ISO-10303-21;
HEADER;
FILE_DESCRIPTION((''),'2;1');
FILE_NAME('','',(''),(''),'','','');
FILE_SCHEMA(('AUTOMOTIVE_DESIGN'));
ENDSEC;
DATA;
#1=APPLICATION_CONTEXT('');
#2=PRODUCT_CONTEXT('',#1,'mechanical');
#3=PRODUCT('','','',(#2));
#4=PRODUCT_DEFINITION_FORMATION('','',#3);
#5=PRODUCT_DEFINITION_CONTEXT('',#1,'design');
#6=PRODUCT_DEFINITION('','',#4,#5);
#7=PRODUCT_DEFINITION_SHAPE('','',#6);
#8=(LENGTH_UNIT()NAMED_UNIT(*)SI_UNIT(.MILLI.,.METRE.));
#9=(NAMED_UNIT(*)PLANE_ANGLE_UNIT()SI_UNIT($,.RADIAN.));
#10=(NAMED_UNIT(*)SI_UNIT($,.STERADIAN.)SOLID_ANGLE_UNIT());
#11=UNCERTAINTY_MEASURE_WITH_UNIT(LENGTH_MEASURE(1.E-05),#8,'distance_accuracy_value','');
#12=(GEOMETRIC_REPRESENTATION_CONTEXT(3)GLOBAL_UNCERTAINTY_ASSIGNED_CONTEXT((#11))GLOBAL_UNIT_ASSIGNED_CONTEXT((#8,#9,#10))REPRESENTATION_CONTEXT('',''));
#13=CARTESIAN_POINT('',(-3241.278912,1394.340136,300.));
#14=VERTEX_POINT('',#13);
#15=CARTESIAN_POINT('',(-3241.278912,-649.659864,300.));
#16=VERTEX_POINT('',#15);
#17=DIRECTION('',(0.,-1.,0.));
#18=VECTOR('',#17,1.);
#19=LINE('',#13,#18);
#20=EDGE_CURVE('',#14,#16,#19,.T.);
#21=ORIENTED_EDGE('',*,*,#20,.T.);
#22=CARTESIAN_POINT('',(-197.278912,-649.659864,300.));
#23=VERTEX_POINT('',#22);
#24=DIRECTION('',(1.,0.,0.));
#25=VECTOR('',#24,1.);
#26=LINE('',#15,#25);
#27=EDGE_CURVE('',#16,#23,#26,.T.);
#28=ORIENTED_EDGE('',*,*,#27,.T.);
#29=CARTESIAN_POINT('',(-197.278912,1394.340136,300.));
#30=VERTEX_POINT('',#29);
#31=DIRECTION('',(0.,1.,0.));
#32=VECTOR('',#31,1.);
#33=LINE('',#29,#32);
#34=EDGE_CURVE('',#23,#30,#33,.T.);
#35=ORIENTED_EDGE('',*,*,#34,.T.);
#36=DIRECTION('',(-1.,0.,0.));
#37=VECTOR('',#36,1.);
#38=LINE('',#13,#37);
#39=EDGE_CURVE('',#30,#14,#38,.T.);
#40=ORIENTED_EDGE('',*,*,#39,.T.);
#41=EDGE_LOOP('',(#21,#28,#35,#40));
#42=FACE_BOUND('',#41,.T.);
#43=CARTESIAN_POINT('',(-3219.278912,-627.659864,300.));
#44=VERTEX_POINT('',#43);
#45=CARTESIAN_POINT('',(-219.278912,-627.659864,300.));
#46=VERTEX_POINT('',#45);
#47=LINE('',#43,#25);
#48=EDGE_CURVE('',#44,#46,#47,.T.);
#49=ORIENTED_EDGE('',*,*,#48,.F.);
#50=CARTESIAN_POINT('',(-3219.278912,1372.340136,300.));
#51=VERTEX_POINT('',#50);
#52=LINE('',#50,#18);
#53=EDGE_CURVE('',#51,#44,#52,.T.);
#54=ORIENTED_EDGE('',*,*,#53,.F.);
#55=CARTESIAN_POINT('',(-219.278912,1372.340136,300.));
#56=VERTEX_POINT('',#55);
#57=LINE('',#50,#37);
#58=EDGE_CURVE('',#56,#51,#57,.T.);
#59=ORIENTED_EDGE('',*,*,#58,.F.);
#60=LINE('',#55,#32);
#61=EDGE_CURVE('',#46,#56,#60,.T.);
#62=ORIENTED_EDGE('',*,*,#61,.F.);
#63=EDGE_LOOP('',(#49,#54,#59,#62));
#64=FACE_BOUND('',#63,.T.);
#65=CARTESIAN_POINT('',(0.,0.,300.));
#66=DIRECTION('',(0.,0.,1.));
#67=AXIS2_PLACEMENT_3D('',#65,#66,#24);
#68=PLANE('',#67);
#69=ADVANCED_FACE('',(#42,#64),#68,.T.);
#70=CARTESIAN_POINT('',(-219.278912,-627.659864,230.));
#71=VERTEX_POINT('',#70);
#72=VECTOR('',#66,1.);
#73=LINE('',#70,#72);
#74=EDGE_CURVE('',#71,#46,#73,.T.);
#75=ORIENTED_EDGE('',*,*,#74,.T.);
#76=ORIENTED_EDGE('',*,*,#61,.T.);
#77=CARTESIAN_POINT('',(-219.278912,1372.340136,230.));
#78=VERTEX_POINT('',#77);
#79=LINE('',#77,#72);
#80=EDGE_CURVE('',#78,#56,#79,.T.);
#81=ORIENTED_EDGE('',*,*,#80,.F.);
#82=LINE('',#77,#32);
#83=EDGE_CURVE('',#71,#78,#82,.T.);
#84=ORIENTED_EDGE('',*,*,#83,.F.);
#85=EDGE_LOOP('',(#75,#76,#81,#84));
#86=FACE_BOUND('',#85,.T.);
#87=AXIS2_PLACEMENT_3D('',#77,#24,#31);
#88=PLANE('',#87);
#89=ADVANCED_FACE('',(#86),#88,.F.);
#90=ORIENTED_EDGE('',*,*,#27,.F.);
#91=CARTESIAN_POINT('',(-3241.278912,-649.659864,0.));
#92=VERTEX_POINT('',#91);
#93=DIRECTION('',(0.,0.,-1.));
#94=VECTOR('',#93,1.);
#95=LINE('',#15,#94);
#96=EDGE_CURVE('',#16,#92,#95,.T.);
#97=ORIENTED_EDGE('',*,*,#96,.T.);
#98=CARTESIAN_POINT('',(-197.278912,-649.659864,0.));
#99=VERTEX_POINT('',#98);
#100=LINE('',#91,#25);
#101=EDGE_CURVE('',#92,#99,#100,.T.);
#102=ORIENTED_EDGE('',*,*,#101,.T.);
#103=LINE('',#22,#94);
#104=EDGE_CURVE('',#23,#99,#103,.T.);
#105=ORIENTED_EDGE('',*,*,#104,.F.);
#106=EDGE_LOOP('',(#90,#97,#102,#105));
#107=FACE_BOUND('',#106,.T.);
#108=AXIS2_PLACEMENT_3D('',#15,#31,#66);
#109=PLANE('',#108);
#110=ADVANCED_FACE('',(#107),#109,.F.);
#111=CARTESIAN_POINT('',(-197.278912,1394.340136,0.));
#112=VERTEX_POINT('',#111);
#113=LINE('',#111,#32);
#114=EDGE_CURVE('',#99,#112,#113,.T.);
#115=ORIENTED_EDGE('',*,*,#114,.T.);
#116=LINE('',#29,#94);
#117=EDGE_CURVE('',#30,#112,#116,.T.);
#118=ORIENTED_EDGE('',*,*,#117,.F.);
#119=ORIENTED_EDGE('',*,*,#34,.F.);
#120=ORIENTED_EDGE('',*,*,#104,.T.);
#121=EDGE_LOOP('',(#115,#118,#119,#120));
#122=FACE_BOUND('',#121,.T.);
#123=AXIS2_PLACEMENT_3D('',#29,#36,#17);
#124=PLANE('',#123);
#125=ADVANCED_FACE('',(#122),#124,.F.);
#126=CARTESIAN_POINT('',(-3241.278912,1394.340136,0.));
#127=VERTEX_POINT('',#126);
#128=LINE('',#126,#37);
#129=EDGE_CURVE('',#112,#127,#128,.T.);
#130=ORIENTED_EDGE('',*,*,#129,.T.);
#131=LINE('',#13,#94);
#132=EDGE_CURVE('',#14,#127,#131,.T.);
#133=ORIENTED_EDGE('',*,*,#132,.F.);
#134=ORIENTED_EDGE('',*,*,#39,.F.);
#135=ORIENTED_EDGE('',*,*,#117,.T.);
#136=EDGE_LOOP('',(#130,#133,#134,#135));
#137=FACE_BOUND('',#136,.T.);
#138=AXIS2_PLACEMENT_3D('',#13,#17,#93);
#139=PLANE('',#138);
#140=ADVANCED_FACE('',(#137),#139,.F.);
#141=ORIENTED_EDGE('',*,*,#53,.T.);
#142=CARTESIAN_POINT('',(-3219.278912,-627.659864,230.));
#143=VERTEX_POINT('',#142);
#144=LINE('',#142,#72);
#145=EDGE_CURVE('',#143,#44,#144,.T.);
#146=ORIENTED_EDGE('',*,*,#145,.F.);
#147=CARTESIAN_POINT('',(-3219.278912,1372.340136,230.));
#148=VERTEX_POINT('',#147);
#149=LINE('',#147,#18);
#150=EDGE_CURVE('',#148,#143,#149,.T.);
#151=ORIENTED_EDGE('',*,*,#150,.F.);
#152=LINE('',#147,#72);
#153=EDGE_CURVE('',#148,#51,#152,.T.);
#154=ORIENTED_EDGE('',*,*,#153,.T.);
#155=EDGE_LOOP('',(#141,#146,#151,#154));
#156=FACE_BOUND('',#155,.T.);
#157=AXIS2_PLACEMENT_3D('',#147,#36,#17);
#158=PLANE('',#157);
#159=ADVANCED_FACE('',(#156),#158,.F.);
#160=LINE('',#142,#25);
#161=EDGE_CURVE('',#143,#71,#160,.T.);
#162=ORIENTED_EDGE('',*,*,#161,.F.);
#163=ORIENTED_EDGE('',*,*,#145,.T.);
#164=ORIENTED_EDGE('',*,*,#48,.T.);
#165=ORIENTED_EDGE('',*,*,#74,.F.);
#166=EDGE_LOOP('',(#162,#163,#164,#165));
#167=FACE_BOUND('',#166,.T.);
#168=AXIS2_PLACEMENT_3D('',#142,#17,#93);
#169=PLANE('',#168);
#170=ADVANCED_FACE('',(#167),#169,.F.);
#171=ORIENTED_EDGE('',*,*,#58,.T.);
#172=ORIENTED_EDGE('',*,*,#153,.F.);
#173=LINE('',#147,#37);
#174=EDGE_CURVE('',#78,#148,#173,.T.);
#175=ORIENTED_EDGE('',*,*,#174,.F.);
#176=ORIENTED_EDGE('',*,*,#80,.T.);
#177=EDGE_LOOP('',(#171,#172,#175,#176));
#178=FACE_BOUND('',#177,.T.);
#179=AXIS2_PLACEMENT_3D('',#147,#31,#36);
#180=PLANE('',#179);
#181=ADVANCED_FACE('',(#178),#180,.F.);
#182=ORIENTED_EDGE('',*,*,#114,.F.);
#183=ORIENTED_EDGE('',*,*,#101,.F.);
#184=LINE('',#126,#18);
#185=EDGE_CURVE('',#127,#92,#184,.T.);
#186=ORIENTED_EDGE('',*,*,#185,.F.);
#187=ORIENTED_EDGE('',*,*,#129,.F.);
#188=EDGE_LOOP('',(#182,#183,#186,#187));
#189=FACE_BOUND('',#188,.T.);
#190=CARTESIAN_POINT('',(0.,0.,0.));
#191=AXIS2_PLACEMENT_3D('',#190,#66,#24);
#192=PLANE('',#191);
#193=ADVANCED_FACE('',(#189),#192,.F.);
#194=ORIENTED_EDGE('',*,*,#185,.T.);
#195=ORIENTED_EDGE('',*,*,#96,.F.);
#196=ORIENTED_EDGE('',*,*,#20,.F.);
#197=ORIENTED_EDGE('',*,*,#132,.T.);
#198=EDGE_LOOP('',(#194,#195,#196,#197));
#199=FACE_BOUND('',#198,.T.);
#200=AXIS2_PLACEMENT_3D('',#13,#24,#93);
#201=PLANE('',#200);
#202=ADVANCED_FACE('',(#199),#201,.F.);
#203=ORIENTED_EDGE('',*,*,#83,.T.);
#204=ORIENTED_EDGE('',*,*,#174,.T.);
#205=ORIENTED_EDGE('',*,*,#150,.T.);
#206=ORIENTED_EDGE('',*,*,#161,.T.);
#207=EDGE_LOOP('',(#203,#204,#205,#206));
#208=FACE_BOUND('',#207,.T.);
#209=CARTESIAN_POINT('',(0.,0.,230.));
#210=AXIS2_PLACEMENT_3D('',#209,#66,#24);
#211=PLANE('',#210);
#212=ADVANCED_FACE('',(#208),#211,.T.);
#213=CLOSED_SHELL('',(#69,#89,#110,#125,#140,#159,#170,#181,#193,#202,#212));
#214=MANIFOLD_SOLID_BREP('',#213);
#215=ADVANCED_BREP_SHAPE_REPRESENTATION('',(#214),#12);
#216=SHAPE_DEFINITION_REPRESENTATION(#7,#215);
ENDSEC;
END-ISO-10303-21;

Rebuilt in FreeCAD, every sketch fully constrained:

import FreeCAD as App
import Part
import Sketcher


def add_polygon(sketch, points):
    """Adds a closed chain of lines whose ends are joined by coincident constraints."""
    first, n = sketch.GeometryCount, len(points)
    for a, b in zip(points, points[1:] + points[:1]):
        sketch.addGeometry(Part.LineSegment(App.Vector(*a, 0), App.Vector(*b, 0)), False)
    for i in range(n):
        sketch.addConstraint(Sketcher.Constraint("Coincident", first + i, 2, first + (i + 1) % n, 1))

doc = App.newDocument("Part")
params = doc.addObject("Spreadsheet::Sheet", "Params")
for row, (alias, value) in enumerate([
    ("sketch1_width", "3044 mm"),
    ("sketch1_height", "2044 mm"),
    ("pad1_length", "300 mm"),
    ("sketch2_width", "3000 mm"),
    ("sketch2_height", "2000 mm"),
    ("pocket1_length", "70 mm"),
], start=1):
    params.set(f"A{row}", alias)
    params.set(f"B{row}", "=" + value)
    params.setAlias(f"B{row}", alias)

body = doc.addObject("PartDesign::Body", "Body")

# Sketch on XY plane
sketch1 = body.newObject("Sketcher::SketchObject", "Sketch")
sketch1.AttachmentSupport = (doc.getObject("XY_Plane"), [""])
sketch1.MapMode = "FlatFace"
add_polygon(sketch1, [(-3241, 1394), (-3241, -650), (-197, -650), (-197, 1394)])  # lines 0-3
sketch1.addConstraint([
    Sketcher.Constraint("Vertical", 0),
    Sketcher.Constraint("Horizontal", 1),
    Sketcher.Constraint("Vertical", 2),
    Sketcher.Constraint("Horizontal", 3),
    Sketcher.Constraint("DistanceX", 1, 1, 1, 2, 3044.0),
    Sketcher.Constraint("DistanceY", 0, 2, 0, 1, 2044.0),
    Sketcher.Constraint("DistanceX", 0, 2, -1, 1, 3241.278912),
    Sketcher.Constraint("DistanceY", 0, 2, -1, 1, 649.659864),
])
sketch1.setExpression("Constraints[8]", "Params.sketch1_width")
sketch1.setExpression("Constraints[9]", "Params.sketch1_height")
pad1 = body.newObject("PartDesign::Pad", "Pad")
pad1.Profile = sketch1
pad1.setExpression("Length", "Params.pad1_length")

# Sketch on XY plane
sketch2 = body.newObject("Sketcher::SketchObject", "Sketch001")
sketch2.AttachmentSupport = (doc.getObject("XY_Plane"), [""])
sketch2.MapMode = "FlatFace"
sketch2.AttachmentOffset = App.Placement(App.Vector(0, 0, 300), App.Rotation())
add_polygon(sketch2, [(-3219, 1372), (-3219, -628), (-219, -628), (-219, 1372)])  # lines 0-3
sketch2.addConstraint([
    Sketcher.Constraint("Vertical", 0),
    Sketcher.Constraint("Horizontal", 1),
    Sketcher.Constraint("Vertical", 2),
    Sketcher.Constraint("Horizontal", 3),
    Sketcher.Constraint("DistanceX", 1, 1, 1, 2, 3000.0),
    Sketcher.Constraint("DistanceY", 0, 2, 0, 1, 2000.0),
    Sketcher.Constraint("DistanceX", 0, 2, -1, 1, 3219.278912),
    Sketcher.Constraint("DistanceY", 0, 2, -1, 1, 627.659864),
])
sketch2.setExpression("Constraints[8]", "Params.sketch2_width")
sketch2.setExpression("Constraints[9]", "Params.sketch2_height")
pocket1 = body.newObject("PartDesign::Pocket", "Pocket")
pocket1.Profile = sketch2
pocket1.setExpression("Length", "Params.pocket1_length")

doc.recompute()
